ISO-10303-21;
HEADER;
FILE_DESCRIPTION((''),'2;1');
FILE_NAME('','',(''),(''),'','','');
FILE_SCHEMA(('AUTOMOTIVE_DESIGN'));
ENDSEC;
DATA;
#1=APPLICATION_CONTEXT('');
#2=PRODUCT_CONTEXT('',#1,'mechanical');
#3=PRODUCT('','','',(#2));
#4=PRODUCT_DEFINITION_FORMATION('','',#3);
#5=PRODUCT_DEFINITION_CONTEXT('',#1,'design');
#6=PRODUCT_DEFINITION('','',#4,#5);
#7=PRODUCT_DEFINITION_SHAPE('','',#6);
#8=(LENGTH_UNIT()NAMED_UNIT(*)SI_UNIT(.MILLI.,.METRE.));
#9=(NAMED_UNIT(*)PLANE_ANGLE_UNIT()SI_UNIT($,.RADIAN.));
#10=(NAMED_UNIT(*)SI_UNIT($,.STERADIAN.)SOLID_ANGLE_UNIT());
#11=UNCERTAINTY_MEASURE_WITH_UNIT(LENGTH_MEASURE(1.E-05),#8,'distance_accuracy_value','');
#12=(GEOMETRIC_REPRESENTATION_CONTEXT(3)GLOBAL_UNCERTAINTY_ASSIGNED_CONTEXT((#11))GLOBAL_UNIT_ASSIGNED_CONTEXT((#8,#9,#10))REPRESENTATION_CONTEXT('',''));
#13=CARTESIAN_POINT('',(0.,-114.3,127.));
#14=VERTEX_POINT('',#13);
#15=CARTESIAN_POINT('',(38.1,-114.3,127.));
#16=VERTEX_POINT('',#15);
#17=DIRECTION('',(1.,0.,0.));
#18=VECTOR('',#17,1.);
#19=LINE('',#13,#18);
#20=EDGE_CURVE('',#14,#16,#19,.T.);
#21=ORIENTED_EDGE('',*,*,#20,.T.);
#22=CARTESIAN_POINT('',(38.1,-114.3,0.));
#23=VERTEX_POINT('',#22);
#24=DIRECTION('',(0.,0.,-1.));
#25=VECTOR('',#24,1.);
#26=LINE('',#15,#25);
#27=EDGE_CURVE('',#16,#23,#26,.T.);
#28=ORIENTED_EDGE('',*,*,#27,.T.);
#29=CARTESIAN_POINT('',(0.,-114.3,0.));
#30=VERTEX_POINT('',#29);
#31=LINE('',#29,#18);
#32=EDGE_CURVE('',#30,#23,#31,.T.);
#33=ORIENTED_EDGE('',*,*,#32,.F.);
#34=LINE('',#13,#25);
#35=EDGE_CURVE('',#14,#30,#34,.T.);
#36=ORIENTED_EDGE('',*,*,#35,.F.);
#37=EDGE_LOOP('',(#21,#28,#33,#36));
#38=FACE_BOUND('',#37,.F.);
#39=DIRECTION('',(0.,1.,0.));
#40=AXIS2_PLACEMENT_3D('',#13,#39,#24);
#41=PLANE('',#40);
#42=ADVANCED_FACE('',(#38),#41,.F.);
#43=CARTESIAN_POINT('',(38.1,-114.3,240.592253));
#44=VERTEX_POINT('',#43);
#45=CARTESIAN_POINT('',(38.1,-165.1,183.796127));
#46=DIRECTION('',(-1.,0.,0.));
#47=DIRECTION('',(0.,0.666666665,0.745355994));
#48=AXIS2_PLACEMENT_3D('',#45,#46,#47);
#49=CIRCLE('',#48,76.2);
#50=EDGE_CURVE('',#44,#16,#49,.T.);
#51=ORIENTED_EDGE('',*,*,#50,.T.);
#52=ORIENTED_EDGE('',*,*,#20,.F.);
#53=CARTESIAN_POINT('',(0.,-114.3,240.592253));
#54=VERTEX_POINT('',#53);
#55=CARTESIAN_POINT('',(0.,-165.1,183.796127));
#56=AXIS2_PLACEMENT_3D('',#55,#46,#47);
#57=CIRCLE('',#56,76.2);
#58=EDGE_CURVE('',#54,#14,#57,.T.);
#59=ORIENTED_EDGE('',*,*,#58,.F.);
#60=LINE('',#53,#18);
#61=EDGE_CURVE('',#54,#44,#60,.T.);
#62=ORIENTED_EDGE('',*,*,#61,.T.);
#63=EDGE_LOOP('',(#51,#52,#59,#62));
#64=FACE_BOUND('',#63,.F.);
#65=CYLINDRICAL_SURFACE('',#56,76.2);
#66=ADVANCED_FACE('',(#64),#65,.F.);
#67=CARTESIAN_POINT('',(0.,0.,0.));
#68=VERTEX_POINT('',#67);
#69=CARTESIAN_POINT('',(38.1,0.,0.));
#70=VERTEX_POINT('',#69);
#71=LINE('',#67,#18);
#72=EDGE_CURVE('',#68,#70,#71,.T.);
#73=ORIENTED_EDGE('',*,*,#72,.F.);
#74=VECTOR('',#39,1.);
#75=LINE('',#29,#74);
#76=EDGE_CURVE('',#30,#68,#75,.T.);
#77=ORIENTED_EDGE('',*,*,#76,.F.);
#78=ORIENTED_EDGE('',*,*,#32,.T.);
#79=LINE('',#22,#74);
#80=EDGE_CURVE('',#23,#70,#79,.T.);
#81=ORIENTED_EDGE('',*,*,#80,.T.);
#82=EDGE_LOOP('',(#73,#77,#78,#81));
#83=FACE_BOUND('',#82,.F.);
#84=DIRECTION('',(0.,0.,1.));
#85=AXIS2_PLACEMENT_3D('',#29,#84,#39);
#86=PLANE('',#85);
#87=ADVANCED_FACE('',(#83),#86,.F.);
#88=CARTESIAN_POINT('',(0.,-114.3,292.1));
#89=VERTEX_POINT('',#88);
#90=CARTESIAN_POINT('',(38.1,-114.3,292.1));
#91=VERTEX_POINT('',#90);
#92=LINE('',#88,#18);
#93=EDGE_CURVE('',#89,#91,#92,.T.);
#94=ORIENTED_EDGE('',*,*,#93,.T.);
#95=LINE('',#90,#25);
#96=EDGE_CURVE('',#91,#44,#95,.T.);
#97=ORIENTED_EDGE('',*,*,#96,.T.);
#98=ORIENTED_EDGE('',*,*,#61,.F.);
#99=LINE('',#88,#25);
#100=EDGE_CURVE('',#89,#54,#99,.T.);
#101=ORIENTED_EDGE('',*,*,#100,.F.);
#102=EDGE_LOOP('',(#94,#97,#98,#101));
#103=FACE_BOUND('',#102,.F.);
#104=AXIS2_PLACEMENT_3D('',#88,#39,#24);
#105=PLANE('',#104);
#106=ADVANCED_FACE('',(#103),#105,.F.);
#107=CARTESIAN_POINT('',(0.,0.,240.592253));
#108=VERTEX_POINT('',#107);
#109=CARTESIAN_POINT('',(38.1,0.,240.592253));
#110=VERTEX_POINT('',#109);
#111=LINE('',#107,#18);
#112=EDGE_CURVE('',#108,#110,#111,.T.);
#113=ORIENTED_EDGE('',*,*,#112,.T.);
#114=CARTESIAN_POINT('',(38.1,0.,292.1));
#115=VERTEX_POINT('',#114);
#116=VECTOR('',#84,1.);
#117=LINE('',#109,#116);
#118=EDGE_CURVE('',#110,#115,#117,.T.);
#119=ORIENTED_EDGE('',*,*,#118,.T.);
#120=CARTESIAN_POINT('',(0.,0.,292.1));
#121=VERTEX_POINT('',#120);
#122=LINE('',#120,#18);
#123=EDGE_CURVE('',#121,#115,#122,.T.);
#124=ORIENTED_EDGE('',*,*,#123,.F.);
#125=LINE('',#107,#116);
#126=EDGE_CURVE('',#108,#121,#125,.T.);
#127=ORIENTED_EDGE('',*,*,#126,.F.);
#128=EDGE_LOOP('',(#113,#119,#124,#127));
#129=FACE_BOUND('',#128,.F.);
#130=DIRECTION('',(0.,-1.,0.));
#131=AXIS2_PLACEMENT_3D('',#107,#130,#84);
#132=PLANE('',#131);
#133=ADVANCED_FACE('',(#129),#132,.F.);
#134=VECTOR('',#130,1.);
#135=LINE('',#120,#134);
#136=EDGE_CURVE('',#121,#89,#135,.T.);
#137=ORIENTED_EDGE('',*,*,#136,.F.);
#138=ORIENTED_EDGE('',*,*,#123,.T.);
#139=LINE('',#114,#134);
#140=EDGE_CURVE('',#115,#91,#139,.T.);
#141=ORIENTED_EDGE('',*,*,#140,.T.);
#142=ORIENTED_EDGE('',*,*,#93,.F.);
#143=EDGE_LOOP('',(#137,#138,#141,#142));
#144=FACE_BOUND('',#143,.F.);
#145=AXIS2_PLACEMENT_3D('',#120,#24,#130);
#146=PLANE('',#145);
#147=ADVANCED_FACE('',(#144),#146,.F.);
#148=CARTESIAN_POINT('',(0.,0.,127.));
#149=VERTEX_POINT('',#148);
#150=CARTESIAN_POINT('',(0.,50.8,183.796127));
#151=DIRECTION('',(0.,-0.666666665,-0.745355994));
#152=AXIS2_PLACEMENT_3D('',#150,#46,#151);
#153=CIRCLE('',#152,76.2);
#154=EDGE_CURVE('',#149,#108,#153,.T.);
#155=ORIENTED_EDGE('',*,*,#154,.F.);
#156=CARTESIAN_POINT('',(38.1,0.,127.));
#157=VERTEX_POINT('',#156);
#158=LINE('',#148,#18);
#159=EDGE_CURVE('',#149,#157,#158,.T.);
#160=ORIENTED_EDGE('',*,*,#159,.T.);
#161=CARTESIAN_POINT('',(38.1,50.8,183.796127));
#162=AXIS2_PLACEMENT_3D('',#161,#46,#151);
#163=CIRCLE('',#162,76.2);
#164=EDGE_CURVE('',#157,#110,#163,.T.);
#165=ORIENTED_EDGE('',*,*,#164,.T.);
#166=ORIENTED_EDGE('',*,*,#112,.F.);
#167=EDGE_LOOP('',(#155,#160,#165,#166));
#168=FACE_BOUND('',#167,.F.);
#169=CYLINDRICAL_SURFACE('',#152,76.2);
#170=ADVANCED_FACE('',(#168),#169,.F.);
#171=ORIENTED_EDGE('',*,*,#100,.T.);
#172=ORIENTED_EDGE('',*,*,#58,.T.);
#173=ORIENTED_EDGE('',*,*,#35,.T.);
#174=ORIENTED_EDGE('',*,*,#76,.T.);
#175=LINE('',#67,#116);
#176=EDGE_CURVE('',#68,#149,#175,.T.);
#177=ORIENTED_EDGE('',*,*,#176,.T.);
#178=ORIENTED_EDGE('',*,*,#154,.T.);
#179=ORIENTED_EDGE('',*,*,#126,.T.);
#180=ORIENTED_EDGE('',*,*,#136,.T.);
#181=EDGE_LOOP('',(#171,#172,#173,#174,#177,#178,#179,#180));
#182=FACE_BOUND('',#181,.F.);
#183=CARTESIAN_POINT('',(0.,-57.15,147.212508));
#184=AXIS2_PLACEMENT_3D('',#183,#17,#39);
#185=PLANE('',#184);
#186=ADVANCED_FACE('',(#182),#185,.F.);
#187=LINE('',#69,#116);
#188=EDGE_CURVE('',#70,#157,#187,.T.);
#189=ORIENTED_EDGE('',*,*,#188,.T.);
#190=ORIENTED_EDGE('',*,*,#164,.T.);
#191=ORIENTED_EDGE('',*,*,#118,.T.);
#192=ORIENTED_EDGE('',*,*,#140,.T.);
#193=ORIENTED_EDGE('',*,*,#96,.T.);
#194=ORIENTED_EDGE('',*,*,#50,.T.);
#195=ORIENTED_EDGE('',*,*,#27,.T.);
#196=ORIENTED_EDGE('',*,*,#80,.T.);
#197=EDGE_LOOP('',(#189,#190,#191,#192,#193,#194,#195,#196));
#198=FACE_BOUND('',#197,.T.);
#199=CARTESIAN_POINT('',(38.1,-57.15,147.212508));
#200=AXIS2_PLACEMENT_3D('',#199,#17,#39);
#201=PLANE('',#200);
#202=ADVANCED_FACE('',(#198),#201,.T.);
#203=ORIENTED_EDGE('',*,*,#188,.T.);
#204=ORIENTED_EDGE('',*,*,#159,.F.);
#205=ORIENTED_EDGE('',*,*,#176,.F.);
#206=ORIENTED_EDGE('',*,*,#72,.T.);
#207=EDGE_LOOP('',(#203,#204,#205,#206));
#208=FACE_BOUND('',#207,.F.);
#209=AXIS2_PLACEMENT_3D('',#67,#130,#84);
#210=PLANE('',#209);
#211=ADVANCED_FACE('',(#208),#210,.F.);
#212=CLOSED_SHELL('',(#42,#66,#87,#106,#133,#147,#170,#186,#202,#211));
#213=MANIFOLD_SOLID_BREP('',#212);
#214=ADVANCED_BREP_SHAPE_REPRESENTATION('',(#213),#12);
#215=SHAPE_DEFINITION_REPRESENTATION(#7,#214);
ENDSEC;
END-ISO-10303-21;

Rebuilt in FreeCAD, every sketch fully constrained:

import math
import FreeCAD as App
import Part
import Sketcher

V = App.Vector
Q = App.Units.Quantity

doc = App.newDocument("Part")
body = doc.addObject("PartDesign::Body", "Body")

# Sketch on YZ plane
sketch1 = doc.addObject("Sketcher::SketchObject", "Sketch")
body.addObject(sketch1)
sketch1.AttachmentSupport = (doc.YZ_Plane, [""])
sketch1.MapMode = "FlatFace"
sketch1.addGeometry([
    Part.LineSegment(V(-114.3, 0, 0), V(0, 0, 0)),  # 0
    Part.LineSegment(V(0, 0, 0), V(0, 127, 0)),  # 1
    Part.ArcOfCircle(Part.Circle(V(50.8, 183.796127, 0), V(0, 0, 1), 76.2), math.radians(131.810315), math.radians(228.189685)),  # 2
    Part.LineSegment(V(0, 240.592253, 0), V(0, 292.1, 0)),  # 3
    Part.LineSegment(V(0, 292.1, 0), V(-114.3, 292.1, 0)),  # 4
    Part.LineSegment(V(-114.3, 292.1, 0), V(-114.3, 240.592253, 0)),  # 5
    Part.ArcOfCircle(Part.Circle(V(-165.1, 183.796127, 0), V(0, 0, 1), 76.2), math.radians(-48.189685), math.radians(48.189685)),  # 6
    Part.LineSegment(V(-114.3, 127, 0), V(-114.3, 0, 0)),  # 7
], False)
sketch1.addConstraint([
    Sketcher.Constraint("Coincident", 0, 2, 1, 1),
    Sketcher.Constraint("Coincident", 1, 2, 2, 2),
    Sketcher.Constraint("Coincident", 2, 1, 3, 1),
    Sketcher.Constraint("Coincident", 3, 2, 4, 1),
    Sketcher.Constraint("Coincident", 4, 2, 5, 1),
    Sketcher.Constraint("Coincident", 5, 2, 6, 2),
    Sketcher.Constraint("Coincident", 6, 1, 7, 1),
    Sketcher.Constraint("Coincident", 7, 2, 0, 1),
    Sketcher.Constraint("Horizontal", 0),
    Sketcher.Constraint("Vertical", 1),
    Sketcher.Constraint("Vertical", 3),
    Sketcher.Constraint("Horizontal", 4),
    Sketcher.Constraint("Vertical", 5),
    Sketcher.Constraint("Vertical", 7),
    Sketcher.Constraint("Coincident", 0, 2, -1, 1),
    Sketcher.Constraint("Equal", 2, 6),
    Sketcher.Constraint("PointOnObject", 2, 1, -2),
    Sketcher.Constraint("Horizontal", 2, 3, 6, 3),
    Sketcher.Constraint("Horizontal", 2, 1, 5, 2),
    Sketcher.Constraint("Horizontal", 1, 2, 6, 1),
    Sketcher.Constraint("Radius", 2, Q("3 in")),
    Sketcher.Constraint("DistanceY", 1, 1, 1, 2, Q("5 in")),
    Sketcher.Constraint("DistanceX", 0, 1, 0, 2, Q("4.5 in")),
    Sketcher.Constraint("DistanceX", -1, 1, 2, 3, Q("2 in")),
    Sketcher.Constraint("DistanceY", -1, 1, 3, 2, Q("11.5 in")),
])
pad1 = doc.addObject("PartDesign::Pad", "Pad")
body.addObject(pad1)
pad1.Profile = sketch1
pad1.Length = Q("1.5 in")

doc.recompute()
